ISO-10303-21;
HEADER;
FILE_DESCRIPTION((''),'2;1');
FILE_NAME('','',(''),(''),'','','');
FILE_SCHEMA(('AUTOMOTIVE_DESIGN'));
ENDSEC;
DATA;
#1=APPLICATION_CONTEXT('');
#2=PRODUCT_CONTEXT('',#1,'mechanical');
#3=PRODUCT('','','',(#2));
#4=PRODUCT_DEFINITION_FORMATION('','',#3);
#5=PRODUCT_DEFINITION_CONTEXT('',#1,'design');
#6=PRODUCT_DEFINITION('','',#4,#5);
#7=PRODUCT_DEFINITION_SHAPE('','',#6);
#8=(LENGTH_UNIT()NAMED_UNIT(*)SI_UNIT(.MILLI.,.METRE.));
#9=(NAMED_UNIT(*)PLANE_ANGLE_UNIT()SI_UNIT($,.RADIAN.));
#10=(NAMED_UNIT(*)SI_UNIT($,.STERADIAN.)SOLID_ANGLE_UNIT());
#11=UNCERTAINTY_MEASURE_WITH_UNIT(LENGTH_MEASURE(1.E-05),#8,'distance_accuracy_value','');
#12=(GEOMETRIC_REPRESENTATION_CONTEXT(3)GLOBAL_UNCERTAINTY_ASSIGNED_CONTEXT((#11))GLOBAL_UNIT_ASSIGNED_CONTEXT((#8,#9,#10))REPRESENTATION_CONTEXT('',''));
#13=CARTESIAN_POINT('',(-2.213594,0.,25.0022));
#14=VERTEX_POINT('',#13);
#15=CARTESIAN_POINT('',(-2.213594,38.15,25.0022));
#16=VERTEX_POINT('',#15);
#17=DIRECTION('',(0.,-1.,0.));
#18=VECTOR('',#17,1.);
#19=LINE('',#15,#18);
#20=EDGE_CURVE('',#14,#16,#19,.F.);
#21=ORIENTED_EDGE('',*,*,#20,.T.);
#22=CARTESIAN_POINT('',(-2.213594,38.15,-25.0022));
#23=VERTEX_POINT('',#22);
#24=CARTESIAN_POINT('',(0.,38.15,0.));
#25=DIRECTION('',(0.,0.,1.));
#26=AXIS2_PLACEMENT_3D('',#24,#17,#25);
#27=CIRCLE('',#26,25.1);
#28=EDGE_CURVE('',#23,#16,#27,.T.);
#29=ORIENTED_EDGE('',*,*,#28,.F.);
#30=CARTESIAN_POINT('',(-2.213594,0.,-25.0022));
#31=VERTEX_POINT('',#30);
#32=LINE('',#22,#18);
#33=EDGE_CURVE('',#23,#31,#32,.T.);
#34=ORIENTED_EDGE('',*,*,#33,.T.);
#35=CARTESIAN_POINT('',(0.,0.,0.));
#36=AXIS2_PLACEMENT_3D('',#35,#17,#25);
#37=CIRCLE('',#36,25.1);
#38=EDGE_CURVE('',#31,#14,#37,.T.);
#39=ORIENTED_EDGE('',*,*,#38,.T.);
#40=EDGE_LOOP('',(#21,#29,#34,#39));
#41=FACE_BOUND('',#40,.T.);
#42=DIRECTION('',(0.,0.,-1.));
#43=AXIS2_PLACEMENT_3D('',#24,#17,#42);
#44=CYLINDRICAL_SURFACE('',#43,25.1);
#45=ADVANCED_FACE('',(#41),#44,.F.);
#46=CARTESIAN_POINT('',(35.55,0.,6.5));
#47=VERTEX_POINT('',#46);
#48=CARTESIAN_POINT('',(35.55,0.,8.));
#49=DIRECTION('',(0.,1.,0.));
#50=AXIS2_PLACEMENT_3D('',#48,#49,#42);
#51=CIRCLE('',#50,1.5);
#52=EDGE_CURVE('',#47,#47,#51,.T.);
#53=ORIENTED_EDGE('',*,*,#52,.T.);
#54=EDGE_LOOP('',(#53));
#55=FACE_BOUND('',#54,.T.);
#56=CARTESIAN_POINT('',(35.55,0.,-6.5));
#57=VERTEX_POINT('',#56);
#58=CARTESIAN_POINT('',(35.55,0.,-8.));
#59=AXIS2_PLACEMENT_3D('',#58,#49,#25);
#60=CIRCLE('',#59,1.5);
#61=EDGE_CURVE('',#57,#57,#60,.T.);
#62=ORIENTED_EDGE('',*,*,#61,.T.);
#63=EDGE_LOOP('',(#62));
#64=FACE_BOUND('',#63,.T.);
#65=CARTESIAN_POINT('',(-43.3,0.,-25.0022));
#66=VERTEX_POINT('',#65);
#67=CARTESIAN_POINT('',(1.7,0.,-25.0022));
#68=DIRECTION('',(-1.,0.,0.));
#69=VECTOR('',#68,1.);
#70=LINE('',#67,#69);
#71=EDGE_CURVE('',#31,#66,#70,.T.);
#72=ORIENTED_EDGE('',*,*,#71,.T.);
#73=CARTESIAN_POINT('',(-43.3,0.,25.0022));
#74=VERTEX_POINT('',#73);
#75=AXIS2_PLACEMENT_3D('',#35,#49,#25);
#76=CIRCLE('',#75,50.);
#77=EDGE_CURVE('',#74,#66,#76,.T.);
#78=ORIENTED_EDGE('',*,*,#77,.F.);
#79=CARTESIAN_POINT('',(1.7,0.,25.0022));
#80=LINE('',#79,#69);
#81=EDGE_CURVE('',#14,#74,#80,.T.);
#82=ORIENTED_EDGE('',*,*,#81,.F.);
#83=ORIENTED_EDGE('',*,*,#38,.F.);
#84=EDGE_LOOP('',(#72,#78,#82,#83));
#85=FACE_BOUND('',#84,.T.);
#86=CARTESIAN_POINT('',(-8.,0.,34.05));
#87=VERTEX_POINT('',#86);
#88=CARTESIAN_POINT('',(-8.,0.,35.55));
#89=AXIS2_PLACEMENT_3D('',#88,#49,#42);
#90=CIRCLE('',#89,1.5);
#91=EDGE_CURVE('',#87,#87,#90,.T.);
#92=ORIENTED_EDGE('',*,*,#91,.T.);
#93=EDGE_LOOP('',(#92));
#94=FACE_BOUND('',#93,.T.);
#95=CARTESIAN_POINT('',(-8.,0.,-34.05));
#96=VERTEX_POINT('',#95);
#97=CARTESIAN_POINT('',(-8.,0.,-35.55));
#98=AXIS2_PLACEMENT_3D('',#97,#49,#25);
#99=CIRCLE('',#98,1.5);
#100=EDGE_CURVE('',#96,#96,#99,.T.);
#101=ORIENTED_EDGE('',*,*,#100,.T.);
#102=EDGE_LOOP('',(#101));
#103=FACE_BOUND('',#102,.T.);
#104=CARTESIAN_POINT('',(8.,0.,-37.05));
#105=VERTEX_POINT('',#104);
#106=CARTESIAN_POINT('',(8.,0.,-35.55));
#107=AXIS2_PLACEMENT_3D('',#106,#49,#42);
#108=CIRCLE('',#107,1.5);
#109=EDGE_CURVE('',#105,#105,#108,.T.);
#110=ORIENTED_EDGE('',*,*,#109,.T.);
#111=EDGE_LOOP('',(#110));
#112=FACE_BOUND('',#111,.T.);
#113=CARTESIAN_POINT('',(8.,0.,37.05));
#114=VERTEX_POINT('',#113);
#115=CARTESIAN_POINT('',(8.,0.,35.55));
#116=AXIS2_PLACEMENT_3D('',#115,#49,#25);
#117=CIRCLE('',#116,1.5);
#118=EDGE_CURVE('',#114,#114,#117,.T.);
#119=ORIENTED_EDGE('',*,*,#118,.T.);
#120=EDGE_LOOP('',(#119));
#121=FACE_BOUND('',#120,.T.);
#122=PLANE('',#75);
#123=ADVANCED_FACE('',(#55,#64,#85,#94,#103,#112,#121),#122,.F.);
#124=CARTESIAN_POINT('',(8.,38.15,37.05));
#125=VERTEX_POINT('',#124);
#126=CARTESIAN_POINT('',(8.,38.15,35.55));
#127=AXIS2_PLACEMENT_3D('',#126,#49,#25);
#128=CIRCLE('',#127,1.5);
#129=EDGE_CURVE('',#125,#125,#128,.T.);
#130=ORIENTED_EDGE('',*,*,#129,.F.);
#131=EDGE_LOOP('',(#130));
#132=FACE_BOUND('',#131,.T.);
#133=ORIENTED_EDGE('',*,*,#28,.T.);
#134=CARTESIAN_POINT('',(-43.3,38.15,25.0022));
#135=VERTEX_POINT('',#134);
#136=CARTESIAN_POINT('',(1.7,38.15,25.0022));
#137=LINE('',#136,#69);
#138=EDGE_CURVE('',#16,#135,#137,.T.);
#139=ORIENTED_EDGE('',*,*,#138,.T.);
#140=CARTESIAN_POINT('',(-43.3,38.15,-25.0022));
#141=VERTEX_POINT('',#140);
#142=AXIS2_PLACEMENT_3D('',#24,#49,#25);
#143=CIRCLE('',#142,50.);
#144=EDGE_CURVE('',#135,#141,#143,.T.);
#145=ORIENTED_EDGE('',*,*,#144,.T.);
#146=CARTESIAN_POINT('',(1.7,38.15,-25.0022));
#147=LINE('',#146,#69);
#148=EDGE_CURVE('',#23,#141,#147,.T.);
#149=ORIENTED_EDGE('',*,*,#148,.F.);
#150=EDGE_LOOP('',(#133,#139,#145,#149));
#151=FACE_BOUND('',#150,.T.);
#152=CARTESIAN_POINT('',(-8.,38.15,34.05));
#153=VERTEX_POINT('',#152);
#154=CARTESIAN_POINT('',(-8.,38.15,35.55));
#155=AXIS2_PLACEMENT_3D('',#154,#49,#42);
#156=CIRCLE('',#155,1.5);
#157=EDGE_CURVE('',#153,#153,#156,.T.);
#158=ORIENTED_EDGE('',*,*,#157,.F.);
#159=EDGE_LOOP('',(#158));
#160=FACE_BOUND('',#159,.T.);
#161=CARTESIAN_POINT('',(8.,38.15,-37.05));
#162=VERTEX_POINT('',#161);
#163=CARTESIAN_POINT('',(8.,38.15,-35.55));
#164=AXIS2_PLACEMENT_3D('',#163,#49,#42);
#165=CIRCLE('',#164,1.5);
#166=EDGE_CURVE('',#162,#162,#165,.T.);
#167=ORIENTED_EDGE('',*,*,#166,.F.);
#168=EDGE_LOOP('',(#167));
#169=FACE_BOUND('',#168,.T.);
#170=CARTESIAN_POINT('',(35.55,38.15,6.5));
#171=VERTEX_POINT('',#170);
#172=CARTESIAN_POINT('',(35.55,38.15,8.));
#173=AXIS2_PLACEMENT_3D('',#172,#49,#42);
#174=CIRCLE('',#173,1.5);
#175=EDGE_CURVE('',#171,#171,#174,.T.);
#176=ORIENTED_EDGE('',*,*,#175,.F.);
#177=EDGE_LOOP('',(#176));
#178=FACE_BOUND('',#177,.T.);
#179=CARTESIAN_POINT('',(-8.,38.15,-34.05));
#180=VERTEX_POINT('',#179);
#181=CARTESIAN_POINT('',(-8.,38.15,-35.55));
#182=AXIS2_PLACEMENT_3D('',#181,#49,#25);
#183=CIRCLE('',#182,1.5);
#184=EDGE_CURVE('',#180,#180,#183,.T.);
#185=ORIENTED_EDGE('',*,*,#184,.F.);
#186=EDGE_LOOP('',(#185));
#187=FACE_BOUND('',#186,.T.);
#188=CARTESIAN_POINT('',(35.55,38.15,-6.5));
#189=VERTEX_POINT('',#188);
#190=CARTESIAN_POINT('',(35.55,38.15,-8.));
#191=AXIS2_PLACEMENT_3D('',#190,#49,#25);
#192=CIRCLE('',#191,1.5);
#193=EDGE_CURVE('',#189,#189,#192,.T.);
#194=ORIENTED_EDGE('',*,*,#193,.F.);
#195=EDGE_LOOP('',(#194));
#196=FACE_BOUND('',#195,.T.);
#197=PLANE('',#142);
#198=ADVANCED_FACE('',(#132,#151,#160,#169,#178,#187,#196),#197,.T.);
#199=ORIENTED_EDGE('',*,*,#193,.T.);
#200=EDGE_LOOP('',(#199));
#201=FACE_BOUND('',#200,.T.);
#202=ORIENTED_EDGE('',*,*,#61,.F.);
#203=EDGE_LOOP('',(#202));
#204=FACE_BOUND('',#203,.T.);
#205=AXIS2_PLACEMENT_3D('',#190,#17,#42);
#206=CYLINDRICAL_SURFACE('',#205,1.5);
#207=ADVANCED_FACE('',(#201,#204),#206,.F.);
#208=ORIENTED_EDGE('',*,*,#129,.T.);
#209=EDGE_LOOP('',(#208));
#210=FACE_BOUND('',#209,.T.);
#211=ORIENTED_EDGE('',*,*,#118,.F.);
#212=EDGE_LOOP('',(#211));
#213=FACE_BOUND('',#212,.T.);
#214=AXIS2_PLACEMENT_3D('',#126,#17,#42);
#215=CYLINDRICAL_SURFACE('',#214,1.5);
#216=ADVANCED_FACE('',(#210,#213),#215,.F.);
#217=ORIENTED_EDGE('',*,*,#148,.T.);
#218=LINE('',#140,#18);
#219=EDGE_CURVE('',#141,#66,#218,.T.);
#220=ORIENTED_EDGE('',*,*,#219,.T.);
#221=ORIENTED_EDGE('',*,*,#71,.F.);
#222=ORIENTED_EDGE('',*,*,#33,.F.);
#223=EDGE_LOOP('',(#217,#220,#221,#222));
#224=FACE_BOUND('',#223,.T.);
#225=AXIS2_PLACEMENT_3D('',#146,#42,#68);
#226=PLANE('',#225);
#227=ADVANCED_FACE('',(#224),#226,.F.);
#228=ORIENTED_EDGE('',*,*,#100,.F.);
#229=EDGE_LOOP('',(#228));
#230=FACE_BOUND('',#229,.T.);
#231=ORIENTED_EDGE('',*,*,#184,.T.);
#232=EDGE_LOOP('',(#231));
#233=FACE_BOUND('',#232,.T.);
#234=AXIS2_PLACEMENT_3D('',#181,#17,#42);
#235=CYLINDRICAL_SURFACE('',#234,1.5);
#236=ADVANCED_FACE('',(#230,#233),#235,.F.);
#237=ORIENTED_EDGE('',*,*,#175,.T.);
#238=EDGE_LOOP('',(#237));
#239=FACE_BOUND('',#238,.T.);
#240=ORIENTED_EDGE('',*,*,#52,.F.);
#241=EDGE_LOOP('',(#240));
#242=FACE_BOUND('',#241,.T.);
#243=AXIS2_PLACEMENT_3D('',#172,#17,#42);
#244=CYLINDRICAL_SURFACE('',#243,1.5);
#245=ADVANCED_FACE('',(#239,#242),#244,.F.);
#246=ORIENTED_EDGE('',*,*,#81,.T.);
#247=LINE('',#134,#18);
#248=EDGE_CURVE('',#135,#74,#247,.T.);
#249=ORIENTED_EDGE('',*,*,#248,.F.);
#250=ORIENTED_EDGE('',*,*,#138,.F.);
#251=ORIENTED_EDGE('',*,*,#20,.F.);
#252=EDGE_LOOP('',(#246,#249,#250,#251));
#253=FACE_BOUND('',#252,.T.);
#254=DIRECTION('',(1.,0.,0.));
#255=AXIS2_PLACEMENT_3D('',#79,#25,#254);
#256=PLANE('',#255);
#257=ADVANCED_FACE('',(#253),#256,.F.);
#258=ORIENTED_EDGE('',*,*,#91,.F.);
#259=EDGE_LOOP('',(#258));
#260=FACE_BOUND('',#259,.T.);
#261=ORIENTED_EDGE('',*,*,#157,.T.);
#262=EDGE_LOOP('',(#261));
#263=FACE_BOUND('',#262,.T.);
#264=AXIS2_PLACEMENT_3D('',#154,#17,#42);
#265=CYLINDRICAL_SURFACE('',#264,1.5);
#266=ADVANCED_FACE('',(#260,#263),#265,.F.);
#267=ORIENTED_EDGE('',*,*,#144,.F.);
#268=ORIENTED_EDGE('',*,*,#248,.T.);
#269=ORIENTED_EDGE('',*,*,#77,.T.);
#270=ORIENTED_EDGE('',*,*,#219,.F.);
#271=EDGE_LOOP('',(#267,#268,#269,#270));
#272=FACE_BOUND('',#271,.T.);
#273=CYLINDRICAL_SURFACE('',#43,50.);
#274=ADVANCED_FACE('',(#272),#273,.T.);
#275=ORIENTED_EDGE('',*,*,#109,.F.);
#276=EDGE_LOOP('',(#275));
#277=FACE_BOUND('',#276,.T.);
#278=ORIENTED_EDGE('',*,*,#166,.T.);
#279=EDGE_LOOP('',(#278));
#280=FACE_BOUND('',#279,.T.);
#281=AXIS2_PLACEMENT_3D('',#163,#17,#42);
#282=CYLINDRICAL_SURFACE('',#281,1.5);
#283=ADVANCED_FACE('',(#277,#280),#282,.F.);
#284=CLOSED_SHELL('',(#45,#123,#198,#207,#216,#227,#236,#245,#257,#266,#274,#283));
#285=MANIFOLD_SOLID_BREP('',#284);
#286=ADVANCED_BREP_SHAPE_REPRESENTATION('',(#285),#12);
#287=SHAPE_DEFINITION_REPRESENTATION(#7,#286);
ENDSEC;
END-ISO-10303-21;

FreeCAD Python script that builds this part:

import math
import FreeCAD as App
import Part
import Sketcher

V = App.Vector
Q = App.Units.Quantity

doc = App.newDocument("Part")
params = doc.addObject("Spreadsheet::Sheet", "Params")
for row, (alias, value) in enumerate([
    ("sketch1_diameter", "3 mm"),
    ("sketch1_radius", "50 mm"),
    ("sketch1_radius2", "25.1 mm"),
    ("pad1_length", "38.15 mm"),
    ("sketch2_width", "38.15 mm"),
    ("sketch2_height", "9.31 mm"),
    ("pocket1_length", "45 mm"),
], start=1):
    params.set(f"A{row}", alias)
    params.set(f"B{row}", "=" + value)
    params.setAlias(f"B{row}", alias)

body = doc.addObject("PartDesign::Body", "Body")

# Sketch on XZ plane
sketch1 = body.newObject("Sketcher::SketchObject", "Sketch")
sketch1.AttachmentSupport = (doc.getObject("XZ_Plane"), [""])
sketch1.MapMode = "FlatFace"
sketch1.addGeometry([
    Part.LineSegment(V(-43.3, -25, 0), V(-19.6, -15.7, 0)),  # 0
    Part.ArcOfCircle(Part.Circle(V(0, 0, 0), V(0, 0, 1), 25.1), math.radians(-141), math.radians(141)),  # 1
    Part.LineSegment(V(-19.6, 15.7, 0), V(-43.3, 25, 0)),  # 2
    Part.ArcOfCircle(Part.Circle(V(0, 0, 0), V(0, 0, 1), 50), math.radians(-150), math.radians(150)),  # 3
    Part.Circle(V(-8, 35.5, 0), V(0, 0, 1), 1.5),  # 4
    Part.Circle(V(8, 35.5, 0), V(0, 0, 1), 1.5),  # 5
    Part.Circle(V(35.5, 8, 0), V(0, 0, 1), 1.5),  # 6
    Part.Circle(V(-8, -35.5, 0), V(0, 0, 1), 1.5),  # 7
    Part.Circle(V(8, -35.5, 0), V(0, 0, 1), 1.5),  # 8
    Part.Circle(V(35.5, -8, 0), V(0, 0, 1), 1.5),  # 9
], False)
sketch1.addConstraint([
    Sketcher.Constraint("Coincident", 0, 2, 1, 1),
    Sketcher.Constraint("Coincident", 1, 2, 2, 1),
    Sketcher.Constraint("Coincident", 2, 2, 3, 2),
    Sketcher.Constraint("Coincident", 3, 1, 0, 1),
    Sketcher.Constraint("Coincident", 1, 3, -1, 1),
    Sketcher.Constraint("Coincident", 3, 3, -1, 1),
    Sketcher.Constraint("Equal", 4, 5),
    Sketcher.Constraint("Equal", 5, 6),
    Sketcher.Constraint("Equal", 6, 7),
    Sketcher.Constraint("Equal", 7, 8),
    Sketcher.Constraint("Equal", 8, 9),
    Sketcher.Constraint("Symmetric", 5, 3, 7, 3, -1, 1),
    Sketcher.Constraint("Symmetric", 4, 3, 8, 3, -1, 1),
    Sketcher.Constraint("Symmetric", 4, 3, 5, 3, -2),
    Sketcher.Constraint("Symmetric", 6, 3, 9, 3, -1),
    Sketcher.Constraint("Vertical", 0, 2, 1, 2),
    Sketcher.Constraint("Vertical", 2, 2, 3, 1),
    Sketcher.Constraint("Diameter", 4, Q("3 mm")),
    Sketcher.Constraint("Radius", 3, Q("50 mm")),
    Sketcher.Constraint("Radius", 1, Q("25.1 mm")),
    Sketcher.Constraint("DistanceX", 4, 3, -1, 1, Q("8 mm")),
    Sketcher.Constraint("DistanceY", -1, 1, 6, 3, Q("8 mm")),
    Sketcher.Constraint("DistanceX", 2, 2, -1, 1, Q("43.3 mm")),
    Sketcher.Constraint("DistanceY", 7, 3, 4, 3, Q("71.1 mm")),
    Sketcher.Constraint("DistanceX", -1, 1, 6, 3, Q("35.55 mm")),
    Sketcher.Constraint("DistanceY", 1, 2, 2, 2, Q("9.31 mm")),
])
sketch1.setExpression("Constraints[17]", "Params.sketch1_diameter")
sketch1.setExpression("Constraints[18]", "Params.sketch1_radius")
sketch1.setExpression("Constraints[19]", "Params.sketch1_radius2")
pad1 = body.newObject("PartDesign::Pad", "Pad")
pad1.Profile = sketch1
pad1.setExpression("Length", "Params.pad1_length")
pad1.Reversed = True

# Sketch on YZ plane
sketch2 = body.newObject("Sketcher::SketchObject", "Sketch001")
sketch2.AttachmentSupport = (doc.getObject("YZ_Plane"), [""])
sketch2.MapMode = "FlatFace"
sketch2.AttachmentOffset = App.Placement(V(0, 0, -43.3), App.Rotation())
sketch2.addGeometry([
    Part.LineSegment(V(38, -25, 0), V(0, -25, 0)),  # 0
    Part.LineSegment(V(0, -25, 0), V(0, -16, 0)),  # 1
    Part.LineSegment(V(0, -16, 0), V(38, -16, 0)),  # 2
    Part.LineSegment(V(38, -16, 0), V(38, -25, 0)),  # 3
    Part.LineSegment(V(38, 16, 0), V(0, 16, 0)),  # 4
    Part.LineSegment(V(0, 16, 0), V(0, 25, 0)),  # 5
    Part.LineSegment(V(0, 25, 0), V(38, 25, 0)),  # 6
    Part.LineSegment(V(38, 25, 0), V(38, 16, 0)),  # 7
], False)
sketch2.addConstraint([
    Sketcher.Constraint("Coincident", 0, 2, 1, 1),
    Sketcher.Constraint("Coincident", 1, 2, 2, 1),
    Sketcher.Constraint("Coincident", 2, 2, 3, 1),
    Sketcher.Constraint("Coincident", 3, 2, 0, 1),
    Sketcher.Constraint("Coincident", 4, 2, 5, 1),
    Sketcher.Constraint("Coincident", 5, 2, 6, 1),
    Sketcher.Constraint("Coincident", 6, 2, 7, 1),
    Sketcher.Constraint("Coincident", 7, 2, 4, 1),
    Sketcher.Constraint("Horizontal", 0),
    Sketcher.Constraint("Vertical", 1),
    Sketcher.Constraint("Horizontal", 2),
    Sketcher.Constraint("Vertical", 3),
    Sketcher.Constraint("Horizontal", 4),
    Sketcher.Constraint("Vertical", 5),
    Sketcher.Constraint("Horizontal", 6),
    Sketcher.Constraint("Vertical", 7),
    Sketcher.Constraint("Symmetric", 1, 2, 4, 2, -1, 1),
    Sketcher.Constraint("Symmetric", 0, 2, 5, 2, -1),
    Sketcher.Constraint("Vertical", 3, 2, 6, 2),
    Sketcher.Constraint("DistanceX", 0, 2, 0, 1, Q("38.15 mm")),
    Sketcher.Constraint("DistanceY", 1, 1, 1, 2, Q("9.31 mm")),
    Sketcher.Constraint("DistanceY", 0, 2, -1, 1, Q("25.0022 mm")),
])
sketch2.setExpression("Constraints[19]", "Params.sketch2_width")
sketch2.setExpression("Constraints[20]", "Params.sketch2_height")
pocket1 = body.newObject("PartDesign::Pocket", "Pocket")
pocket1.Profile = sketch2
pocket1.setExpression("Length", "Params.pocket1_length")
pocket1.Reversed = True

doc.recompute()
